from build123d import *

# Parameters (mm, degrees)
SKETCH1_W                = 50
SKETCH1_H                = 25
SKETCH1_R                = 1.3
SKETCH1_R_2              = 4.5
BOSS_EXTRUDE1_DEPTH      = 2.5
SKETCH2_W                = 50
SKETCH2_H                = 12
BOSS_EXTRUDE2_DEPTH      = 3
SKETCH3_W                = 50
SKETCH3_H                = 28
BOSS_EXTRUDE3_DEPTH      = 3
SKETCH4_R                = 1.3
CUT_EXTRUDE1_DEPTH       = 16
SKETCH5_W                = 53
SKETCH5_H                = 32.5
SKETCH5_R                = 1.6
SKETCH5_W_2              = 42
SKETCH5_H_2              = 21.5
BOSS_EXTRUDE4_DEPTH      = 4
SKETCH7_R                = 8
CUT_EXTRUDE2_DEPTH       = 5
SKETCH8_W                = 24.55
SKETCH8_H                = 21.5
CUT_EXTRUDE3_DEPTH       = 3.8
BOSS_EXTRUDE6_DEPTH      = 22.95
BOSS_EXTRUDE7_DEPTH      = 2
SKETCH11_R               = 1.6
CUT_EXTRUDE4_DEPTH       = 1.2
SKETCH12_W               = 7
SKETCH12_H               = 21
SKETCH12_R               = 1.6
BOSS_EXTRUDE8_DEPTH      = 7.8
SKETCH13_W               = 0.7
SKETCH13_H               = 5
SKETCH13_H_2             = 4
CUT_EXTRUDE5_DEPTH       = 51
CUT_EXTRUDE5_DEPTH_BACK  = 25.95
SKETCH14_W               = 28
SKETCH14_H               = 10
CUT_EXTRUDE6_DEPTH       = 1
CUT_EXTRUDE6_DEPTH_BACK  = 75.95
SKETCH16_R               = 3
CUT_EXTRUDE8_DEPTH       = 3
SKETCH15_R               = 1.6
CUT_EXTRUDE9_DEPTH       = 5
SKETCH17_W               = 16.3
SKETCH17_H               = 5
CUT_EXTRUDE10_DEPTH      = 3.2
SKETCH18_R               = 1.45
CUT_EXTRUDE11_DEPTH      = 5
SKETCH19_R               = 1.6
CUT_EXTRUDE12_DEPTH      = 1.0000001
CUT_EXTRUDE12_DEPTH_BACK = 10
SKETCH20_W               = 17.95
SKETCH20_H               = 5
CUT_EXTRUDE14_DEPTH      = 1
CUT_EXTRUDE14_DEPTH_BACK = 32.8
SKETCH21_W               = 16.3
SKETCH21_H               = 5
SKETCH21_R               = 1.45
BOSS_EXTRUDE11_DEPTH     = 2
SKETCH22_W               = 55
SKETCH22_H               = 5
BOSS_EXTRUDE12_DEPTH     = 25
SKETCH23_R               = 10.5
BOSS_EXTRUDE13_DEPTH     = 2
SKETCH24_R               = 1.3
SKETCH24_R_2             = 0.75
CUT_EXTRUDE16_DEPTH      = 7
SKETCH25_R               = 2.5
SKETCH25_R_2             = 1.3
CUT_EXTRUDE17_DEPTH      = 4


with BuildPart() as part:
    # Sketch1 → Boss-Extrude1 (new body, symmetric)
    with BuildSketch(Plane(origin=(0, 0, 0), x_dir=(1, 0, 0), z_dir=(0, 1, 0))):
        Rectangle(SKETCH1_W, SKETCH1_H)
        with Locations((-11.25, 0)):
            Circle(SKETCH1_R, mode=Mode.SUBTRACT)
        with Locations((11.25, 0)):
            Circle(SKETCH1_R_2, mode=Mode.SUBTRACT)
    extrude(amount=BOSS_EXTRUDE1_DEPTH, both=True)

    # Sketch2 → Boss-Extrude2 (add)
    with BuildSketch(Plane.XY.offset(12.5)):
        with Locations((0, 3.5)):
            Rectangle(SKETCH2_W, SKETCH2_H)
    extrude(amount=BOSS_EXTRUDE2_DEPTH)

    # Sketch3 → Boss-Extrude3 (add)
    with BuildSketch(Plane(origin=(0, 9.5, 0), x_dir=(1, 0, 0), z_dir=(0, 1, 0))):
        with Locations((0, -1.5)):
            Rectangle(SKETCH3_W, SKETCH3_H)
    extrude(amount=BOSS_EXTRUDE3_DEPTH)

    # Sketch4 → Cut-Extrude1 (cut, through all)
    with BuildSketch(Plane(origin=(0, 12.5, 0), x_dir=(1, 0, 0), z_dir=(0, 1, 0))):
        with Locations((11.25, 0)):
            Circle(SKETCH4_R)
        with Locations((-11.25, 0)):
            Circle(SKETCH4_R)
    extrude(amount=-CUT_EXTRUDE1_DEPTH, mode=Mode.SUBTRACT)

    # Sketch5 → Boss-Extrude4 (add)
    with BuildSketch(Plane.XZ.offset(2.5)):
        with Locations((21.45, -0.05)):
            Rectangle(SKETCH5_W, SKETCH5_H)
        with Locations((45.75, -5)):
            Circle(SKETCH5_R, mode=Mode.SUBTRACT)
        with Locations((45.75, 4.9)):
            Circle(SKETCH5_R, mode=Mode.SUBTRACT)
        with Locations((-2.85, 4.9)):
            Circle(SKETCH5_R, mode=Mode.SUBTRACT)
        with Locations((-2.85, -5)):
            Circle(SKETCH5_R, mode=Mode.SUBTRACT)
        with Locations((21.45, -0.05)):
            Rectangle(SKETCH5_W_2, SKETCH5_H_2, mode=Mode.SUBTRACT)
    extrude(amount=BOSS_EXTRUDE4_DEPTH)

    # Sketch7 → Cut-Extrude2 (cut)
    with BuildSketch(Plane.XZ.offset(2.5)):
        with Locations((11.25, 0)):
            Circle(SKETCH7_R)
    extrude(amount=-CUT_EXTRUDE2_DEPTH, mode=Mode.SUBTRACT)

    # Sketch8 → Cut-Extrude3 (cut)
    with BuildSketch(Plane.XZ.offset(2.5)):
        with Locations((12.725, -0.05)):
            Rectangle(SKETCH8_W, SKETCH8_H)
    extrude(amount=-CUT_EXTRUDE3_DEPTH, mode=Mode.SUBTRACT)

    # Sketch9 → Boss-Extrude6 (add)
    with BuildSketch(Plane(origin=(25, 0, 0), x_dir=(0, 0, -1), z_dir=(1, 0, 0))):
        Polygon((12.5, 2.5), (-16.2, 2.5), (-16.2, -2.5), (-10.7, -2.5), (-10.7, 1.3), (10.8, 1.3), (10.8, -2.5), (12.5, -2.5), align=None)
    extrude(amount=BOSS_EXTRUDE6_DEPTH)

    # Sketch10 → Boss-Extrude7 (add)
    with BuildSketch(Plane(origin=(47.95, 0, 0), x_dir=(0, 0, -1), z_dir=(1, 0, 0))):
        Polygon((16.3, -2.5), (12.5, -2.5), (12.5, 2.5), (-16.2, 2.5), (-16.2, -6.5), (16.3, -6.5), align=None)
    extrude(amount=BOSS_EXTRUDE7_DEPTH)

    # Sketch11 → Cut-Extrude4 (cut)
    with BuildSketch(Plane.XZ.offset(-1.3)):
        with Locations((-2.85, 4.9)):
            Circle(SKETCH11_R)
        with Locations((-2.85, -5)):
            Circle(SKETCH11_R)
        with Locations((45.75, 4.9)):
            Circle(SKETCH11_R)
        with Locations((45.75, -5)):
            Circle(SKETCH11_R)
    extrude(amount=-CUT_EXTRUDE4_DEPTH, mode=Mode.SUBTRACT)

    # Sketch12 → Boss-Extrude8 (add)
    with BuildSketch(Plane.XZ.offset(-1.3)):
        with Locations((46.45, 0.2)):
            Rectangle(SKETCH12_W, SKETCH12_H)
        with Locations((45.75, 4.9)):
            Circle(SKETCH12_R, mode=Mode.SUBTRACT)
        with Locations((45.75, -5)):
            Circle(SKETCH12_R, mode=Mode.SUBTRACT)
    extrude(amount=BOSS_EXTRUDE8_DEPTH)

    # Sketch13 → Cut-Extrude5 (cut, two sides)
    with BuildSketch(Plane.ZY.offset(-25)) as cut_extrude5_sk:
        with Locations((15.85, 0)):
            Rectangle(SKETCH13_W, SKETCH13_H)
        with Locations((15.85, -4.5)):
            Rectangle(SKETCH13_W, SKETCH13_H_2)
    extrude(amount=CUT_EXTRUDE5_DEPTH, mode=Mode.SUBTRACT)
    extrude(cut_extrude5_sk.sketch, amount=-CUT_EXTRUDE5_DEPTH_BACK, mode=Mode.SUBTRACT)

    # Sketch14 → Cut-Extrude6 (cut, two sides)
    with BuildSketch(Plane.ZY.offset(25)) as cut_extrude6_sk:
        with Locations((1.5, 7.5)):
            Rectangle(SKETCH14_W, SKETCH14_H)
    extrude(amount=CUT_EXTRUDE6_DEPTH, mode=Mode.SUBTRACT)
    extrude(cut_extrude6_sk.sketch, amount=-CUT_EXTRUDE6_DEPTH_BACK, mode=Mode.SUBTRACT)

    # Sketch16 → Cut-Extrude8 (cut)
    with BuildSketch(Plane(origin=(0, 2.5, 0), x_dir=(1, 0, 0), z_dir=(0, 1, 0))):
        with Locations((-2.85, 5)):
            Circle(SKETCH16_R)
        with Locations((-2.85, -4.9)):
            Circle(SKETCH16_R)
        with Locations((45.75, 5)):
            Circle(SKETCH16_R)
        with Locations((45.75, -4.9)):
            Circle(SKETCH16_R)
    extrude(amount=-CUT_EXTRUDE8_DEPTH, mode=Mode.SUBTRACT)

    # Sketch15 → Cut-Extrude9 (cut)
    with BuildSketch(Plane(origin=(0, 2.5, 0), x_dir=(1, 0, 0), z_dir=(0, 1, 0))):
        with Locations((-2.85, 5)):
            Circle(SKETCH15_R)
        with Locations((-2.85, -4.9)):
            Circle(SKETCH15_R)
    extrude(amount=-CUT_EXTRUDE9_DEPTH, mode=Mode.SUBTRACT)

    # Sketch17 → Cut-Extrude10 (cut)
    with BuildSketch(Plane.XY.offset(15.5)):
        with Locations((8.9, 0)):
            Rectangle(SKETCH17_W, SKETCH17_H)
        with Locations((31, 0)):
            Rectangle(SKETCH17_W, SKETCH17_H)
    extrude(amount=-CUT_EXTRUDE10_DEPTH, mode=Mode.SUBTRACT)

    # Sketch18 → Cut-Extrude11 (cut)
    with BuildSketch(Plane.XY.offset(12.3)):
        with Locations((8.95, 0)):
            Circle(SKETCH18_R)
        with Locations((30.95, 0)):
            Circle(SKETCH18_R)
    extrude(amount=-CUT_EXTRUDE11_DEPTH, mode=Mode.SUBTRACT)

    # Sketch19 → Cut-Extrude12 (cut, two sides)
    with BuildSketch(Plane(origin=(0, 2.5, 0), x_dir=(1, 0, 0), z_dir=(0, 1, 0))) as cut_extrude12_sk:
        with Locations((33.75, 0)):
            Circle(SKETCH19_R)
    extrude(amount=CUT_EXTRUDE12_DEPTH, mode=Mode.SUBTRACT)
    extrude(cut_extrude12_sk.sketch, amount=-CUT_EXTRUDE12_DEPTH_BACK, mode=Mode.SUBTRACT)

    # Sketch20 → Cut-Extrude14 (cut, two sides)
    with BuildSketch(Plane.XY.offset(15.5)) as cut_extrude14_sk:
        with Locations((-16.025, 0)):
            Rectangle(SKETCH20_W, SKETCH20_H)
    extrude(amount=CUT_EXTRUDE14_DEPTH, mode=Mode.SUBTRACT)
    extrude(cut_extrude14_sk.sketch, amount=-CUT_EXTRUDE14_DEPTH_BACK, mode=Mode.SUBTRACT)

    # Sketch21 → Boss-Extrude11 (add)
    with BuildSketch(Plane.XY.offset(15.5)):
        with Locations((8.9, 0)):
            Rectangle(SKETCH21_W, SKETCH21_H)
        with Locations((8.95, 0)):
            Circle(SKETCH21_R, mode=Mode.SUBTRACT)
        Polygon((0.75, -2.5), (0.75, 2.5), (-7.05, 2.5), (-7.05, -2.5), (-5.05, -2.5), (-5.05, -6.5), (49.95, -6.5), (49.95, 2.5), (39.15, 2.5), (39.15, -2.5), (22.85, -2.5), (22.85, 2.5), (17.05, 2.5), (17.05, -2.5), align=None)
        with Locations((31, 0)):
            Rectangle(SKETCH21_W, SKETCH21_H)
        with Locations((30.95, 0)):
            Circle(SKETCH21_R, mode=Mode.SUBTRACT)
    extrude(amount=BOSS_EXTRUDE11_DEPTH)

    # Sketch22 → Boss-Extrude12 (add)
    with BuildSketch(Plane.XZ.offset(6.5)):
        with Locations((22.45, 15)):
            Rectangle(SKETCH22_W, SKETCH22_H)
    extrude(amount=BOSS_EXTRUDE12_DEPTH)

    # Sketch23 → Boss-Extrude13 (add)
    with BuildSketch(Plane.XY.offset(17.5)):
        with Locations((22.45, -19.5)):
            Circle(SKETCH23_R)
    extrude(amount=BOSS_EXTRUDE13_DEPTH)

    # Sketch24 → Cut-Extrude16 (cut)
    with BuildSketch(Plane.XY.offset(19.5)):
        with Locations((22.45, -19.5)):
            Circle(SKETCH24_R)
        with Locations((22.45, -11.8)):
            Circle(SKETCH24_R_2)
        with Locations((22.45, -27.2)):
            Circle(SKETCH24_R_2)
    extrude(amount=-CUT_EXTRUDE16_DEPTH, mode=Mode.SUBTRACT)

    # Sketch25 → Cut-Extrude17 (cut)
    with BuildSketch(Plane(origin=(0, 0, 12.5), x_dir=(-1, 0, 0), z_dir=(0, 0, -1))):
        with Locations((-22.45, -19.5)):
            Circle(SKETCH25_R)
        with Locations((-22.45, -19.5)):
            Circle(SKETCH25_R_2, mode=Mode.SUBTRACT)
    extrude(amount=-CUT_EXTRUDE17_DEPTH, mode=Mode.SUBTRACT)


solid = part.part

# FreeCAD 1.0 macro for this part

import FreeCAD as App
import Part
import Sketcher
Q = App.Units.Quantity

doc = App.newDocument("Part")
params = doc.addObject("Spreadsheet::Sheet", "Params")
for row, (alias, value) in enumerate([
    ("sketch1_diameter", "9 mm"),
    ("sketch1_diameter2", "2.6 mm"),
    ("sketch1_width", "50 mm"),
    ("sketch1_height", "25 mm"),
    ("pad1_length", "5 mm"),
    ("sketch2_width", "50 mm"),
    ("sketch2_height", "12 mm"),
    ("pad2_length", "3 mm"),
    ("sketch3_width", "50 mm"),
    ("sketch3_height", "28 mm"),
    ("pad3_length", "3 mm"),
    ("sketch4_diameter", "2.6 mm"),
    ("sketch5_diameter", "3.2 mm"),
    ("sketch5_width", "53 mm"),
    ("sketch5_width2", "42 mm"),
    ("sketch5_height", "32.5 mm"),
    ("sketch5_height2", "21.5 mm"),
    ("pad4_length", "4 mm"),
    ("sketch6_diameter", "16 mm"),
    ("pocket2_length", "5 mm"),
    ("sketch7_height", "21.5 mm"),
    ("sketch7_width", "24.55 mm"),
    ("pocket3_length", "3.8 mm"),
    ("sketch8_width", "5 mm"),
    ("sketch8_width2", "3.8 mm"),
    ("sketch8_height", "28.7 mm"),
    ("sketch8_height2", "5.5 mm"),
    ("sketch8_height3", "21.5 mm"),
    ("pad5_length", "22.95 mm"),
    ("sketch9_width", "5 mm"),
    ("sketch9_width2", "9 mm"),
    ("sketch9_height", "3.8 mm"),
    ("sketch9_height2", "28.7 mm"),
    ("pad6_length", "2 mm"),
    ("sketch10_diameter", "3.2 mm"),
    ("pocket4_length", "1.2 mm"),
    ("sketch11_diameter", "3.2 mm"),
    ("sketch11_width", "7 mm"),
    ("sketch11_height", "21 mm"),
    ("pad7_length", "7.8 mm"),
    ("sketch12_width", "9 mm"),
    ("sketch12_height", "0.7 mm"),
    ("sketch13_width", "10 mm"),
    ("sketch13_height", "28 mm"),
    ("sketch14_diameter", "6 mm"),
    ("pocket7_length", "3 mm"),
    ("sketch15_diameter", "3.2 mm"),
    ("pocket8_length", "5 mm"),
    ("sketch16_height", "5 mm"),
    ("sketch16_width", "16.3 mm"),
    ("pocket9_length", "3.2 mm"),
    ("sketch17_diameter", "2.9 mm"),
    ("pocket10_length", "5 mm"),
    ("sketch18_diameter", "3.2 mm"),
    ("sketch19_height", "5 mm"),
    ("sketch19_width", "17.95 mm"),
    ("sketch20_diameter", "2.9 mm"),
    ("sketch20_width", "2 mm"),
    ("sketch20_width2", "55 mm"),
    ("sketch20_height", "5 mm"),
    ("sketch20_height2", "4 mm"),
    ("pad8_length", "2 mm"),
    ("sketch21_width", "55 mm"),
    ("sketch21_height", "5 mm"),
    ("pad9_length", "25 mm"),
    ("sketch22_diameter", "21 mm"),
    ("pad10_length", "2 mm"),
    ("sketch23_diameter", "2.6 mm"),
    ("sketch23_diameter2", "1.5 mm"),
    ("pocket13_length", "7 mm"),
    ("sketch24_diameter", "5 mm"),
    ("sketch24_diameter2", "2.6 mm"),
    ("pocket14_length", "4 mm"),
], start=1):
    params.set(f"A{row}", alias)
    params.set(f"B{row}", "=" + value)
    params.setAlias(f"B{row}", alias)

body = doc.addObject("PartDesign::Body", "Body")

# Sketch on XZ plane
sketch1 = body.newObject("Sketcher::SketchObject", "Sketch")
sketch1.AttachmentSupport = (doc.getObject("XZ_Plane"), [""])
sketch1.MapMode = "FlatFace"
sketch1.addGeometry([
    Part.LineSegment(App.Vector(-25, -12.5, 0), App.Vector(-25, 12.5, 0)),  # 0
    Part.LineSegment(App.Vector(-25, 12.5, 0), App.Vector(25, 12.5, 0)),  # 1
    Part.LineSegment(App.Vector(25, 12.5, 0), App.Vector(25, -12.5, 0)),  # 2
    Part.LineSegment(App.Vector(25, -12.5, 0), App.Vector(-25, -12.5, 0)),  # 3
    Part.Circle(App.Vector(-11.25, 0, 0), App.Vector(0, 0, 1), 1.3),  # 4
    Part.Circle(App.Vector(11.25, 0, 0), App.Vector(0, 0, 1), 4.5),  # 5
], False)
sketch1.addConstraint([
    Sketcher.Constraint("Coincident", 0, 2, 1, 1),
    Sketcher.Constraint("Coincident", 1, 2, 2, 1),
    Sketcher.Constraint("Coincident", 2, 2, 3, 1),
    Sketcher.Constraint("Coincident", 3, 2, 0, 1),
    Sketcher.Constraint("Vertical", 0),
    Sketcher.Constraint("Horizontal", 1),
    Sketcher.Constraint("Vertical", 2),
    Sketcher.Constraint("Horizontal", 3),
    Sketcher.Constraint("Symmetric", 4, 3, 5, 3, -1, 1),
    Sketcher.Constraint("Symmetric", 0, 2, 2, 2, -1, 1),
    Sketcher.Constraint("PointOnObject", 4, 3, -1),
    Sketcher.Constraint("Diameter", 5, Q("9 mm")),
    Sketcher.Constraint("Diameter", 4, Q("2.6 mm")),
    Sketcher.Constraint("DistanceX", 1, 1, 1, 2, Q("50 mm")),
    Sketcher.Constraint("DistanceY", 0, 1, 0, 2, Q("25 mm")),
    Sketcher.Constraint("DistanceX", 4, 3, 5, 3, Q("22.5 mm")),
])
sketch1.setExpression("Constraints[11]", "Params.sketch1_diameter")
sketch1.setExpression("Constraints[12]", "Params.sketch1_diameter2")
sketch1.setExpression("Constraints[13]", "Params.sketch1_width")
sketch1.setExpression("Constraints[14]", "Params.sketch1_height")
pad1 = body.newObject("PartDesign::Pad", "Pad")
pad1.Profile = sketch1
pad1.setExpression("Length", "Params.pad1_length")
pad1.Midplane = True

# Sketch on XY plane
sketch2 = body.newObject("Sketcher::SketchObject", "Sketch001")
sketch2.AttachmentSupport = (doc.getObject("XY_Plane"), [""])
sketch2.MapMode = "FlatFace"
sketch2.AttachmentOffset = App.Placement(App.Vector(0, 0, 12.5), App.Rotation())
sketch2.addGeometry([
    Part.LineSegment(App.Vector(-25, 9.5, 0), App.Vector(-25, -2.5, 0)),
    Part.LineSegment(App.Vector(-25, -2.5, 0), App.Vector(25, -2.5, 0)),
    Part.LineSegment(App.Vector(25, -2.5, 0), App.Vector(25, 9.5, 0)),
    Part.LineSegment(App.Vector(25, 9.5, 0), App.Vector(-25, 9.5, 0)),
], False)
sketch2.addConstraint([
    Sketcher.Constraint("Coincident", 0, 2, 1, 1),
    Sketcher.Constraint("Coincident", 1, 2, 2, 1),
    Sketcher.Constraint("Coincident", 2, 2, 3, 1),
    Sketcher.Constraint("Coincident", 3, 2, 0, 1),
    Sketcher.Constraint("Vertical", 0),
    Sketcher.Constraint("Horizontal", 1),
    Sketcher.Constraint("Vertical", 2),
    Sketcher.Constraint("Horizontal", 3),
    Sketcher.Constraint("DistanceX", 1, 1, 1, 2, Q("50 mm")),
    Sketcher.Constraint("DistanceY", 0, 2, 0, 1, Q("12 mm")),
    Sketcher.Constraint("DistanceX", 0, 2, -1, 1, Q("25 mm")),
    Sketcher.Constraint("DistanceY", 0, 2, -1, 1, Q("2.5 mm")),
])
sketch2.setExpression("Constraints[8]", "Params.sketch2_width")
sketch2.setExpression("Constraints[9]", "Params.sketch2_height")
pad2 = body.newObject("PartDesign::Pad", "Pad001")
pad2.Profile = sketch2
pad2.setExpression("Length", "Params.pad2_length")

# Sketch on XZ plane
sketch3 = body.newObject("Sketcher::SketchObject", "Sketch002")
sketch3.AttachmentSupport = (doc.getObject("XZ_Plane"), [""])
sketch3.MapMode = "FlatFace"
sketch3.AttachmentOffset = App.Placement(App.Vector(0, 0, -9.5), App.Rotation())
sketch3.addGeometry([
    Part.LineSegment(App.Vector(-25, -12.5, 0), App.Vector(-25, 15.5, 0)),
    Part.LineSegment(App.Vector(-25, 15.5, 0), App.Vector(25, 15.5, 0)),
    Part.LineSegment(App.Vector(25, 15.5, 0), App.Vector(25, -12.5, 0)),
    Part.LineSegment(App.Vector(25, -12.5, 0), App.Vector(-25, -12.5, 0)),
], False)
sketch3.addConstraint([
    Sketcher.Constraint("Coincident", 0, 2, 1, 1),
    Sketcher.Constraint("Coincident", 1, 2, 2, 1),
    Sketcher.Constraint("Coincident", 2, 2, 3, 1),
    Sketcher.Constraint("Coincident", 3, 2, 0, 1),
    Sketcher.Constraint("Vertical", 0),
    Sketcher.Constraint("Horizontal", 1),
    Sketcher.Constraint("Vertical", 2),
    Sketcher.Constraint("Horizontal", 3),
    Sketcher.Constraint("DistanceX", 1, 1, 1, 2, Q("50 mm")),
    Sketcher.Constraint("DistanceY", 0, 1, 0, 2, Q("28 mm")),
    Sketcher.Constraint("DistanceX", 0, 2, -1, 1, Q("25 mm")),
    Sketcher.Constraint("DistanceY", -1, 1, 0, 2, Q("15.5 mm")),
])
sketch3.setExpression("Constraints[8]", "Params.sketch3_width")
sketch3.setExpression("Constraints[9]", "Params.sketch3_height")
pad3 = body.newObject("PartDesign::Pad", "Pad002")
pad3.Profile = sketch3
pad3.setExpression("Length", "Params.pad3_length")
pad3.Reversed = True

# Sketch on XZ plane
sketch4 = body.newObject("Sketcher::SketchObject", "Sketch003")
sketch4.AttachmentSupport = (doc.getObject("XZ_Plane"), [""])
sketch4.MapMode = "FlatFace"
sketch4.AttachmentOffset = App.Placement(App.Vector(0, 0, -12.5), App.Rotation())
sketch4.addGeometry([
    Part.Circle(App.Vector(11.25, 0, 0), App.Vector(0, 0, 1), 1.3),
    Part.Circle(App.Vector(-11.25, 0, 0), App.Vector(0, 0, 1), 1.3),
], False)
sketch4.addConstraint([
    Sketcher.Constraint("Equal", 0, 1),
    Sketcher.Constraint("Symmetric", 0, 3, 1, 3, -1, 1),
    Sketcher.Constraint("PointOnObject", 0, 3, -1),
    Sketcher.Constraint("Diameter", 0, Q("2.6 mm")),
    Sketcher.Constraint("DistanceX", 1, 3, 0, 3, Q("22.5 mm")),
])
sketch4.setExpression("Constraints[3]", "Params.sketch4_diameter")
pocket1 = body.newObject("PartDesign::Pocket", "Pocket")
pocket1.Profile = sketch4
pocket1.Type = "ThroughAll"
pocket1.Reversed = True

# Sketch on XZ plane
sketch5 = body.newObject("Sketcher::SketchObject", "Sketch004")
sketch5.AttachmentSupport = (doc.getObject("XZ_Plane"), [""])
sketch5.MapMode = "FlatFace"
sketch5.AttachmentOffset = App.Placement(App.Vector(0, 0, 2.5), App.Rotation())
sketch5.addGeometry([
    Part.LineSegment(App.Vector(-5.05, 16.2, 0), App.Vector(-5.05, -16.3, 0)),  # 0
    Part.LineSegment(App.Vector(-5.05, -16.3, 0), App.Vector(47.95, -16.3, 0)),  # 1
    Part.LineSegment(App.Vector(47.95, -16.3, 0), App.Vector(47.95, 16.2, 0)),  # 2
    Part.LineSegment(App.Vector(47.95, 16.2, 0), App.Vector(-5.05, 16.2, 0)),  # 3
    Part.Circle(App.Vector(-2.85, -5, 0), App.Vector(0, 0, 1), 1.6),  # 4
    Part.Circle(App.Vector(45.75, -5, 0), App.Vector(0, 0, 1), 1.6),  # 5
    Part.Circle(App.Vector(-2.85, 4.9, 0), App.Vector(0, 0, 1), 1.6),  # 6
    Part.LineSegment(App.Vector(42.45, -10.8, 0), App.Vector(0.45, -10.8, 0)),  # 7
    Part.LineSegment(App.Vector(0.45, -10.8, 0), App.Vector(0.45, 10.7, 0)),  # 8
    Part.LineSegment(App.Vector(0.45, 10.7, 0), App.Vector(42.45, 10.7, 0)),  # 9
    Part.LineSegment(App.Vector(42.45, 10.7, 0), App.Vector(42.45, -10.8, 0)),  # 10
    Part.Circle(App.Vector(45.75, 4.9, 0), App.Vector(0, 0, 1), 1.6),  # 11
], False)
sketch5.addConstraint([
    Sketcher.Constraint("Coincident", 0, 2, 1, 1),
    Sketcher.Constraint("Coincident", 1, 2, 2, 1),
    Sketcher.Constraint("Coincident", 2, 2, 3, 1),
    Sketcher.Constraint("Coincident", 3, 2, 0, 1),
    Sketcher.Constraint("Coincident", 7, 2, 8, 1),
    Sketcher.Constraint("Coincident", 8, 2, 9, 1),
    Sketcher.Constraint("Coincident", 9, 2, 10, 1),
    Sketcher.Constraint("Coincident", 10, 2, 7, 1),
    Sketcher.Constraint("Vertical", 0),
    Sketcher.Constraint("Horizontal", 1),
    Sketcher.Constraint("Vertical", 2),
    Sketcher.Constraint("Horizontal", 3),
    Sketcher.Constraint("Horizontal", 7),
    Sketcher.Constraint("Vertical", 8),
    Sketcher.Constraint("Horizontal", 9),
    Sketcher.Constraint("Vertical", 10),
    Sketcher.Constraint("Equal", 4, 5),
    Sketcher.Constraint("Equal", 5, 6),
    Sketcher.Constraint("Equal", 6, 11),
    Sketcher.Constraint("Horizontal", 4, 3, 5, 3),
    Sketcher.Constraint("Horizontal", 6, 3, 11, 3),
    Sketcher.Constraint("Vertical", 4, 3, 6, 3),
    Sketcher.Constraint("Vertical", 5, 3, 11, 3),
    Sketcher.Constraint("Diameter", 4, Q("3.2 mm")),
    Sketcher.Constraint("DistanceX", 1, 1, 1, 2, Q("53 mm")),
    Sketcher.Constraint("DistanceX", 7, 2, 7, 1, Q("42 mm")),
    Sketcher.Constraint("DistanceY", 0, 2, 0, 1, Q("32.5 mm")),
    Sketcher.Constraint("DistanceY", 8, 1, 8, 2, Q("21.5 mm")),
    Sketcher.Constraint("DistanceY", 4, 3, -1, 1, Q("5 mm")),
    Sketcher.Constraint("DistanceY", 7, 2, 3, 2, Q("27 mm")),
    Sketcher.Constraint("DistanceY", -1, 1, 6, 3, Q("4.9 mm")),
    Sketcher.Constraint("DistanceY", 0, 2, -1, 1, Q("16.3 mm")),
    Sketcher.Constraint("DistanceX", 4, 3, 5, 3, Q("48.6 mm")),
    Sketcher.Constraint("DistanceX", 0, 2, 4, 3, Q("2.2 mm")),
    Sketcher.Constraint("DistanceX", 4, 3, 7, 2, Q("3.3 mm")),
    Sketcher.Constraint("DistanceX", 4, 3, -1, 1, Q("2.85 mm")),
])
sketch5.setExpression("Constraints[23]", "Params.sketch5_diameter")
sketch5.setExpression("Constraints[24]", "Params.sketch5_width")
sketch5.setExpression("Constraints[25]", "Params.sketch5_width2")
sketch5.setExpression("Constraints[26]", "Params.sketch5_height")
sketch5.setExpression("Constraints[27]", "Params.sketch5_height2")
pad4 = body.newObject("PartDesign::Pad", "Pad003")
pad4.Profile = sketch5
pad4.setExpression("Length", "Params.pad4_length")

# Sketch on XZ plane
sketch6 = body.newObject("Sketcher::SketchObject", "Sketch005")
sketch6.AttachmentSupport = (doc.getObject("XZ_Plane"), [""])
sketch6.MapMode = "FlatFace"
sketch6.AttachmentOffset = App.Placement(App.Vector(0, 0, 2.5), App.Rotation())
sketch6.addGeometry(Part.Circle(App.Vector(11.25, 0, 0), App.Vector(0, 0, 1), 8), False)
sketch6.addConstraint([
    Sketcher.Constraint("PointOnObject", 0, 3, -1),
    Sketcher.Constraint("Diameter", 0, Q("16 mm")),
    Sketcher.Constraint("DistanceX", -1, 1, 0, 3, Q("11.25 mm")),
])
sketch6.setExpression("Constraints[1]", "Params.sketch6_diameter")
pocket2 = body.newObject("PartDesign::Pocket", "Pocket001")
pocket2.Profile = sketch6
pocket2.setExpression("Length", "Params.pocket2_length")

# Sketch on XZ plane
sketch7 = body.newObject("Sketcher::SketchObject", "Sketch006")
sketch7.AttachmentSupport = (doc.getObject("XZ_Plane"), [""])
sketch7.MapMode = "FlatFace"
sketch7.AttachmentOffset = App.Placement(App.Vector(0, 0, 2.5), App.Rotation())
sketch7.addGeometry([
    Part.LineSegment(App.Vector(0.45, 10.7, 0), App.Vector(0.45, -10.8, 0)),
    Part.LineSegment(App.Vector(0.45, -10.8, 0), App.Vector(25, -10.8, 0)),
    Part.LineSegment(App.Vector(25, -10.8, 0), App.Vector(25, 10.7, 0)),
    Part.LineSegment(App.Vector(25, 10.7, 0), App.Vector(0.45, 10.7, 0)),
], False)
sketch7.addConstraint([
    Sketcher.Constraint("Coincident", 0, 2, 1, 1),
    Sketcher.Constraint("Coincident", 1, 2, 2, 1),
    Sketcher.Constraint("Coincident", 2, 2, 3, 1),
    Sketcher.Constraint("Coincident", 3, 2, 0, 1),
    Sketcher.Constraint("Vertical", 0),
    Sketcher.Constraint("Horizontal", 1),
    Sketcher.Constraint("Vertical", 2),
    Sketcher.Constraint("Horizontal", 3),
    Sketcher.Constraint("DistanceY", 0, 2, 0, 1, Q("21.5 mm")),
    Sketcher.Constraint("DistanceX", -1, 1, 1, 2, Q("25 mm")),
    Sketcher.Constraint("DistanceX", 1, 1, 1, 2, Q("24.55 mm")),
    Sketcher.Constraint("DistanceY", 0, 2, -1, 1, Q("10.8 mm")),
])
sketch7.setExpression("Constraints[8]", "Params.sketch7_height")
sketch7.setExpression("Constraints[10]", "Params.sketch7_width")
pocket3 = body.newObject("PartDesign::Pocket", "Pocket002")
pocket3.Profile = sketch7
pocket3.setExpression("Length", "Params.pocket3_length")

# Sketch on YZ plane
sketch8 = body.newObject("Sketcher::SketchObject", "Sketch007")
sketch8.AttachmentSupport = (doc.getObject("YZ_Plane"), [""])
sketch8.MapMode = "FlatFace"
sketch8.AttachmentOffset = App.Placement(App.Vector(0, 0, 25), App.Rotation())
sketch8.addGeometry([
    Part.LineSegment(App.Vector(2.5, -12.5, 0), App.Vector(2.5, 16.2, 0)),  # 0
    Part.LineSegment(App.Vector(2.5, 16.2, 0), App.Vector(-2.5, 16.2, 0)),  # 1
    Part.LineSegment(App.Vector(-2.5, 16.2, 0), App.Vector(-2.5, 10.7, 0)),  # 2
    Part.LineSegment(App.Vector(-2.5, 10.7, 0), App.Vector(1.3, 10.7, 0)),  # 3
    Part.LineSegment(App.Vector(1.3, 10.7, 0), App.Vector(1.3, -10.8, 0)),  # 4
    Part.LineSegment(App.Vector(1.3, -10.8, 0), App.Vector(-2.5, -10.8, 0)),  # 5
    Part.LineSegment(App.Vector(-2.5, -10.8, 0), App.Vector(-2.5, -12.5, 0)),  # 6
    Part.LineSegment(App.Vector(-2.5, -12.5, 0), App.Vector(2.5, -12.5, 0)),  # 7
], False)
sketch8.addConstraint([
    Sketcher.Constraint("Coincident", 0, 2, 1, 1),
    Sketcher.Constraint("Coincident", 1, 2, 2, 1),
    Sketcher.Constraint("Coincident", 2, 2, 3, 1),
    Sketcher.Constraint("Coincident", 3, 2, 4, 1),
    Sketcher.Constraint("Coincident", 4, 2, 5, 1),
    Sketcher.Constraint("Coincident", 5, 2, 6, 1),
    Sketcher.Constraint("Coincident", 6, 2, 7, 1),
    Sketcher.Constraint("Coincident", 7, 2, 0, 1),
    Sketcher.Constraint("Vertical", 0),
    Sketcher.Constraint("Horizontal", 1),
    Sketcher.Constraint("Vertical", 2),
    Sketcher.Constraint("Horizontal", 3),
    Sketcher.Constraint("Vertical", 4),
    Sketcher.Constraint("Horizontal", 5),
    Sketcher.Constraint("Vertical", 6),
    Sketcher.Constraint("Horizontal", 7),
    Sketcher.Constraint("Vertical", 2, 2, 5, 2),
    Sketcher.Constraint("DistanceX", 1, 2, 1, 1, Q("5 mm")),
    Sketcher.Constraint("DistanceX", 3, 1, 3, 2, Q("3.8 mm")),
    Sketcher.Constraint("DistanceY", 0, 1, 0, 2, Q("28.7 mm")),
    Sketcher.Constraint("DistanceY", 2, 2, 2, 1, Q("5.5 mm")),
    Sketcher.Constraint("DistanceY", 4, 2, 4, 1, Q("21.5 mm")),
    Sketcher.Constraint("DistanceX", -1, 1, 0, 2, Q("2.5 mm")),
    Sketcher.Constraint("DistanceY", -1, 1, 0, 2, Q("16.2 mm")),
])
sketch8.setExpression("Constraints[17]", "Params.sketch8_width")
sketch8.setExpression("Constraints[18]", "Params.sketch8_width2")
sketch8.setExpression("Constraints[19]", "Params.sketch8_height")
sketch8.setExpression("Constraints[20]", "Params.sketch8_height2")
sketch8.setExpression("Constraints[21]", "Params.sketch8_height3")
pad5 = body.newObject("PartDesign::Pad", "Pad004")
pad5.Profile = sketch8
pad5.setExpression("Length", "Params.pad5_length")

# Sketch on YZ plane
sketch9 = body.newObject("Sketcher::SketchObject", "Sketch008")
sketch9.AttachmentSupport = (doc.getObject("YZ_Plane"), [""])
sketch9.MapMode = "FlatFace"
sketch9.AttachmentOffset = App.Placement(App.Vector(0, 0, 47.95), App.Rotation())
sketch9.addGeometry([
    Part.LineSegment(App.Vector(-2.5, -16.3, 0), App.Vector(-2.5, -12.5, 0)),  # 0
    Part.LineSegment(App.Vector(-2.5, -12.5, 0), App.Vector(2.5, -12.5, 0)),  # 1
    Part.LineSegment(App.Vector(2.5, -12.5, 0), App.Vector(2.5, 16.2, 0)),  # 2
    Part.LineSegment(App.Vector(2.5, 16.2, 0), App.Vector(-6.5, 16.2, 0)),  # 3
    Part.LineSegment(App.Vector(-6.5, 16.2, 0), App.Vector(-6.5, -16.3, 0)),  # 4
    Part.LineSegment(App.Vector(-6.5, -16.3, 0), App.Vector(-2.5, -16.3, 0)),  # 5
], False)
sketch9.addConstraint([
    Sketcher.Constraint("Coincident", 0, 2, 1, 1),
    Sketcher.Constraint("Coincident", 1, 2, 2, 1),
    Sketcher.Constraint("Coincident", 2, 2, 3, 1),
    Sketcher.Constraint("Coincident", 3, 2, 4, 1),
    Sketcher.Constraint("Coincident", 4, 2, 5, 1),
    Sketcher.Constraint("Coincident", 5, 2, 0, 1),
    Sketcher.Constraint("Vertical", 0),
    Sketcher.Constraint("Horizontal", 1),
    Sketcher.Constraint("Vertical", 2),
    Sketcher.Constraint("Horizontal", 3),
    Sketcher.Constraint("Vertical", 4),
    Sketcher.Constraint("Horizontal", 5),
    Sketcher.Constraint("DistanceX", 1, 1, 1, 2, Q("5 mm")),
    Sketcher.Constraint("DistanceX", 3, 2, 3, 1, Q("9 mm")),
    Sketcher.Constraint("DistanceY", 0, 1, 0, 2, Q("3.8 mm")),
    Sketcher.Constraint("DistanceY", 2, 1, 2, 2, Q("28.7 mm")),
    Sketcher.Constraint("DistanceX", 0, 2, -1, 1, Q("2.5 mm")),
    Sketcher.Constraint("DistanceY", 0, 2, -1, 1, Q("12.5 mm")),
])
sketch9.setExpression("Constraints[12]", "Params.sketch9_width")
sketch9.setExpression("Constraints[13]", "Params.sketch9_width2")
sketch9.setExpression("Constraints[14]", "Params.sketch9_height")
sketch9.setExpression("Constraints[15]", "Params.sketch9_height2")
pad6 = body.newObject("PartDesign::Pad", "Pad005")
pad6.Profile = sketch9
pad6.setExpression("Length", "Params.pad6_length")

# Sketch on XZ plane
sketch10 = body.newObject("Sketcher::SketchObject", "Sketch009")
sketch10.AttachmentSupport = (doc.getObject("XZ_Plane"), [""])
sketch10.MapMode = "FlatFace"
sketch10.AttachmentOffset = App.Placement(App.Vector(0, 0, -1.3), App.Rotation())
sketch10.addGeometry([
    Part.Circle(App.Vector(-2.85, 4.9, 0), App.Vector(0, 0, 1), 1.6),
    Part.Circle(App.Vector(-2.85, -5, 0), App.Vector(0, 0, 1), 1.6),
    Part.Circle(App.Vector(45.75, 4.9, 0), App.Vector(0, 0, 1), 1.6),
    Part.Circle(App.Vector(45.75, -5, 0), App.Vector(0, 0, 1), 1.6),
], False)
sketch10.addConstraint([
    Sketcher.Constraint("Equal", 0, 1),
    Sketcher.Constraint("Equal", 1, 2),
    Sketcher.Constraint("Equal", 2, 3),
    Sketcher.Constraint("Horizontal", 0, 3, 2, 3),
    Sketcher.Constraint("Horizontal", 1, 3, 3, 3),
    Sketcher.Constraint("Vertical", 0, 3, 1, 3),
    Sketcher.Constraint("Vertical", 2, 3, 3, 3),
    Sketcher.Constraint("Diameter", 0, Q("3.2 mm")),
    Sketcher.Constraint("DistanceY", 1, 3, -1, 1, Q("5 mm")),
    Sketcher.Constraint("DistanceY", -1, 1, 0, 3, Q("4.9 mm")),
    Sketcher.Constraint("DistanceX", 0, 3, 2, 3, Q("48.6 mm")),
    Sketcher.Constraint("DistanceX", 0, 3, -1, 1, Q("2.85 mm")),
])
sketch10.setExpression("Constraints[7]", "Params.sketch10_diameter")
pocket4 = body.newObject("PartDesign::Pocket", "Pocket003")
pocket4.Profile = sketch10
pocket4.setExpression("Length", "Params.pocket4_length")

# Sketch on XZ plane
sketch11 = body.newObject("Sketcher::SketchObject", "Sketch010")
sketch11.AttachmentSupport = (doc.getObject("XZ_Plane"), [""])
sketch11.MapMode = "FlatFace"
sketch11.AttachmentOffset = App.Placement(App.Vector(0, 0, -1.3), App.Rotation())
sketch11.addGeometry([
    Part.LineSegment(App.Vector(42.95, 10.7, 0), App.Vector(42.95, -10.3, 0)),  # 0
    Part.LineSegment(App.Vector(42.95, -10.3, 0), App.Vector(49.95, -10.3, 0)),  # 1
    Part.LineSegment(App.Vector(49.95, -10.3, 0), App.Vector(49.95, 10.7, 0)),  # 2
    Part.LineSegment(App.Vector(49.95, 10.7, 0), App.Vector(42.95, 10.7, 0)),  # 3
    Part.Circle(App.Vector(45.75, -5, 0), App.Vector(0, 0, 1), 1.6),  # 4
    Part.Circle(App.Vector(45.75, 4.9, 0), App.Vector(0, 0, 1), 1.6),  # 5
], False)
sketch11.addConstraint([
    Sketcher.Constraint("Coincident", 0, 2, 1, 1),
    Sketcher.Constraint("Coincident", 1, 2, 2, 1),
    Sketcher.Constraint("Coincident", 2, 2, 3, 1),
    Sketcher.Constraint("Coincident", 3, 2, 0, 1),
    Sketcher.Constraint("Vertical", 0),
    Sketcher.Constraint("Horizontal", 1),
    Sketcher.Constraint("Vertical", 2),
    Sketcher.Constraint("Horizontal", 3),
    Sketcher.Constraint("Equal", 4, 5),
    Sketcher.Constraint("Vertical", 4, 3, 5, 3),
    Sketcher.Constraint("Diameter", 4, Q("3.2 mm")),
    Sketcher.Constraint("DistanceX", 1, 1, 1, 2, Q("7 mm")),
    Sketcher.Constraint("DistanceY", 0, 2, 0, 1, Q("21 mm")),
    Sketcher.Constraint("DistanceY", 4, 3, -1, 1, Q("5 mm")),
    Sketcher.Constraint("DistanceY", -1, 1, 5, 3, Q("4.9 mm")),
    Sketcher.Constraint("DistanceY", 0, 2, -1, 1, Q("10.3 mm")),
    Sketcher.Constraint("DistanceX", 0, 2, 4, 3, Q("2.8 mm")),
    Sketcher.Constraint("DistanceX", -1, 1, 4, 3, Q("45.75 mm")),
])
sketch11.setExpression("Constraints[10]", "Params.sketch11_diameter")
sketch11.setExpression("Constraints[11]", "Params.sketch11_width")
sketch11.setExpression("Constraints[12]", "Params.sketch11_height")
pad7 = body.newObject("PartDesign::Pad", "Pad006")
pad7.Profile = sketch11
pad7.setExpression("Length", "Params.pad7_length")

# Sketch on YZ plane
sketch12 = body.newObject("Sketcher::SketchObject", "Sketch011")
sketch12.AttachmentSupport = (doc.getObject("YZ_Plane"), [""])
sketch12.MapMode = "FlatFace"
sketch12.AttachmentOffset = App.Placement(App.Vector(0, 0, 25), App.Rotation())
sketch12.addGeometry([
    Part.LineSegment(App.Vector(2.5, 15.5, 0), App.Vector(-6.5, 15.5, 0)),
    Part.LineSegment(App.Vector(-6.5, 15.5, 0), App.Vector(-6.5, 16.2, 0)),
    Part.LineSegment(App.Vector(-6.5, 16.2, 0), App.Vector(2.5, 16.2, 0)),
    Part.LineSegment(App.Vector(2.5, 16.2, 0), App.Vector(2.5, 15.5, 0)),
], False)
sketch12.addConstraint([
    Sketcher.Constraint("Coincident", 0, 2, 1, 1),
    Sketcher.Constraint("Coincident", 1, 2, 2, 1),
    Sketcher.Constraint("Coincident", 2, 2, 3, 1),
    Sketcher.Constraint("Coincident", 3, 2, 0, 1),
    Sketcher.Constraint("Horizontal", 0),
    Sketcher.Constraint("Vertical", 1),
    Sketcher.Constraint("Horizontal", 2),
    Sketcher.Constraint("Vertical", 3),
    Sketcher.Constraint("DistanceX", 0, 2, 0, 1, Q("9 mm")),
    Sketcher.Constraint("DistanceY", 1, 1, 1, 2, Q("0.7 mm")),
    Sketcher.Constraint("DistanceX", 0, 2, -1, 1, Q("6.5 mm")),
    Sketcher.Constraint("DistanceY", -1, 1, 0, 2, Q("15.5 mm")),
])
sketch12.setExpression("Constraints[8]", "Params.sketch12_width")
sketch12.setExpression("Constraints[9]", "Params.sketch12_height")
pocket5 = body.newObject("PartDesign::Pocket", "Pocket004")
pocket5.Profile = sketch12
pocket5.Type = "ThroughAll"
pocket5.Midplane = True

# Sketch on YZ plane
sketch13 = body.newObject("Sketcher::SketchObject", "Sketch012")
sketch13.AttachmentSupport = (doc.getObject("YZ_Plane"), [""])
sketch13.MapMode = "FlatFace"
sketch13.AttachmentOffset = App.Placement(App.Vector(0, 0, -25), App.Rotation())
sketch13.addGeometry([
    Part.LineSegment(App.Vector(12.5, -12.5, 0), App.Vector(2.5, -12.5, 0)),
    Part.LineSegment(App.Vector(2.5, -12.5, 0), App.Vector(2.5, 15.5, 0)),
    Part.LineSegment(App.Vector(2.5, 15.5, 0), App.Vector(12.5, 15.5, 0)),
    Part.LineSegment(App.Vector(12.5, 15.5, 0), App.Vector(12.5, -12.5, 0)),
], False)
sketch13.addConstraint([
    Sketcher.Constraint("Coincident", 0, 2, 1, 1),
    Sketcher.Constraint("Coincident", 1, 2, 2, 1),
    Sketcher.Constraint("Coincident", 2, 2, 3, 1),
    Sketcher.Constraint("Coincident", 3, 2, 0, 1),
    Sketcher.Constraint("Horizontal", 0),
    Sketcher.Constraint("Vertical", 1),
    Sketcher.Constraint("Horizontal", 2),
    Sketcher.Constraint("Vertical", 3),
    Sketcher.Constraint("DistanceX", 0, 2, 0, 1, Q("10 mm")),
    Sketcher.Constraint("DistanceY", 1, 1, 1, 2, Q("28 mm")),
    Sketcher.Constraint("DistanceX", -1, 1, 0, 2, Q("2.5 mm")),
    Sketcher.Constraint("DistanceY", 0, 2, -1, 1, Q("12.5 mm")),
])
sketch13.setExpression("Constraints[8]", "Params.sketch13_width")
sketch13.setExpression("Constraints[9]", "Params.sketch13_height")
pocket6 = body.newObject("PartDesign::Pocket", "Pocket005")
pocket6.Profile = sketch13
pocket6.Type = "ThroughAll"
pocket6.Midplane = True

# Sketch on XZ plane
sketch14 = body.newObject("Sketcher::SketchObject", "Sketch013")
sketch14.AttachmentSupport = (doc.getObject("XZ_Plane"), [""])
sketch14.MapMode = "FlatFace"
sketch14.AttachmentOffset = App.Placement(App.Vector(0, 0, -2.5), App.Rotation())
sketch14.addGeometry([
    Part.Circle(App.Vector(-2.85, -5, 0), App.Vector(0, 0, 1), 3),
    Part.Circle(App.Vector(-2.85, 4.9, 0), App.Vector(0, 0, 1), 3),
    Part.Circle(App.Vector(45.75, -5, 0), App.Vector(0, 0, 1), 3),
    Part.Circle(App.Vector(45.75, 4.9, 0), App.Vector(0, 0, 1), 3),
], False)
sketch14.addConstraint([
    Sketcher.Constraint("Equal", 0, 1),
    Sketcher.Constraint("Equal", 1, 2),
    Sketcher.Constraint("Equal", 2, 3),
    Sketcher.Constraint("Horizontal", 0, 3, 2, 3),
    Sketcher.Constraint("Horizontal", 1, 3, 3, 3),
    Sketcher.Constraint("Vertical", 0, 3, 1, 3),
    Sketcher.Constraint("Vertical", 2, 3, 3, 3),
    Sketcher.Constraint("Diameter", 0, Q("6 mm")),
    Sketcher.Constraint("DistanceY", 0, 3, -1, 1, Q("5 mm")),
    Sketcher.Constraint("DistanceY", -1, 1, 1, 3, Q("4.9 mm")),
    Sketcher.Constraint("DistanceX", 0, 3, 2, 3, Q("48.6 mm")),
    Sketcher.Constraint("DistanceX", 0, 3, -1, 1, Q("2.85 mm")),
])
sketch14.setExpression("Constraints[7]", "Params.sketch14_diameter")
pocket7 = body.newObject("PartDesign::Pocket", "Pocket006")
pocket7.Profile = sketch14
pocket7.setExpression("Length", "Params.pocket7_length")
pocket7.Reversed = True

# Sketch on XZ plane
sketch15 = body.newObject("Sketcher::SketchObject", "Sketch014")
sketch15.AttachmentSupport = (doc.getObject("XZ_Plane"), [""])
sketch15.MapMode = "FlatFace"
sketch15.AttachmentOffset = App.Placement(App.Vector(0, 0, -2.5), App.Rotation())
sketch15.addGeometry([
    Part.Circle(App.Vector(-2.85, -5, 0), App.Vector(0, 0, 1), 1.6),
    Part.Circle(App.Vector(-2.85, 4.9, 0), App.Vector(0, 0, 1), 1.6),
], False)
sketch15.addConstraint([
    Sketcher.Constraint("Equal", 0, 1),
    Sketcher.Constraint("Vertical", 0, 3, 1, 3),
    Sketcher.Constraint("Diameter", 0, Q("3.2 mm")),
    Sketcher.Constraint("DistanceY", 0, 3, -1, 1, Q("5 mm")),
    Sketcher.Constraint("DistanceY", -1, 1, 1, 3, Q("4.9 mm")),
    Sketcher.Constraint("DistanceX", 0, 3, -1, 1, Q("2.85 mm")),
])
sketch15.setExpression("Constraints[2]", "Params.sketch15_diameter")
pocket8 = body.newObject("PartDesign::Pocket", "Pocket007")
pocket8.Profile = sketch15
pocket8.setExpression("Length", "Params.pocket8_length")
pocket8.Reversed = True

# Sketch on XY plane
sketch16 = body.newObject("Sketcher::SketchObject", "Sketch015")
sketch16.AttachmentSupport = (doc.getObject("XY_Plane"), [""])
sketch16.MapMode = "FlatFace"
sketch16.AttachmentOffset = App.Placement(App.Vector(0, 0, 15.5), App.Rotation())
sketch16.addGeometry([
    Part.LineSegment(App.Vector(0.75, 2.5, 0), App.Vector(0.75, -2.5, 0)),  # 0
    Part.LineSegment(App.Vector(0.75, -2.5, 0), App.Vector(17.05, -2.5, 0)),  # 1
    Part.LineSegment(App.Vector(17.05, -2.5, 0), App.Vector(17.05, 2.5, 0)),  # 2
    Part.LineSegment(App.Vector(17.05, 2.5, 0), App.Vector(0.75, 2.5, 0)),  # 3
    Part.LineSegment(App.Vector(22.85, 2.5, 0), App.Vector(22.85, -2.5, 0)),  # 4
    Part.LineSegment(App.Vector(22.85, -2.5, 0), App.Vector(39.15, -2.5, 0)),  # 5
    Part.LineSegment(App.Vector(39.15, -2.5, 0), App.Vector(39.15, 2.5, 0)),  # 6
    Part.LineSegment(App.Vector(39.15, 2.5, 0), App.Vector(22.85, 2.5, 0)),  # 7
], False)
sketch16.addConstraint([
    Sketcher.Constraint("Coincident", 0, 2, 1, 1),
    Sketcher.Constraint("Coincident", 1, 2, 2, 1),
    Sketcher.Constraint("Coincident", 2, 2, 3, 1),
    Sketcher.Constraint("Coincident", 3, 2, 0, 1),
    Sketcher.Constraint("Coincident", 4, 2, 5, 1),
    Sketcher.Constraint("Coincident", 5, 2, 6, 1),
    Sketcher.Constraint("Coincident", 6, 2, 7, 1),
    Sketcher.Constraint("Coincident", 7, 2, 4, 1),
    Sketcher.Constraint("Vertical", 0),
    Sketcher.Constraint("Horizontal", 1),
    Sketcher.Constraint("Vertical", 2),
    Sketcher.Constraint("Horizontal", 3),
    Sketcher.Constraint("Vertical", 4),
    Sketcher.Constraint("Horizontal", 5),
    Sketcher.Constraint("Vertical", 6),
    Sketcher.Constraint("Horizontal", 7),
    Sketcher.Constraint("Horizontal", 1, 2, 4, 2),
    Sketcher.Constraint("Horizontal", 3, 2, 6, 2),
    Sketcher.Constraint("Equal", 3, 5),
    Sketcher.Constraint("DistanceY", 0, 2, 0, 1, Q("5 mm")),
    Sketcher.Constraint("DistanceX", 1, 1, 1, 2, Q("16.3 mm")),
    Sketcher.Constraint("DistanceY", 0, 2, -1, 1, Q("2.5 mm")),
    Sketcher.Constraint("DistanceX", 1, 2, 4, 2, Q("5.8 mm")),
    Sketcher.Constraint("DistanceX", -1, 1, 0, 2, Q("0.75 mm")),
])
sketch16.setExpression("Constraints[19]", "Params.sketch16_height")
sketch16.setExpression("Constraints[20]", "Params.sketch16_width")
pocket9 = body.newObject("PartDesign::Pocket", "Pocket008")
pocket9.Profile = sketch16
pocket9.setExpression("Length", "Params.pocket9_length")

# Sketch on XY plane
sketch17 = body.newObject("Sketcher::SketchObject", "Sketch016")
sketch17.AttachmentSupport = (doc.getObject("XY_Plane"), [""])
sketch17.MapMode = "FlatFace"
sketch17.AttachmentOffset = App.Placement(App.Vector(0, 0, 12.3), App.Rotation())
sketch17.addGeometry([
    Part.Circle(App.Vector(8.95, 0, 0), App.Vector(0, 0, 1), 1.45),
    Part.Circle(App.Vector(30.95, 0, 0), App.Vector(0, 0, 1), 1.45),
], False)
sketch17.addConstraint([
    Sketcher.Constraint("Equal", 0, 1),
    Sketcher.Constraint("PointOnObject", 0, 3, -1),
    Sketcher.Constraint("PointOnObject", 1, 3, -1),
    Sketcher.Constraint("Diameter", 0, Q("2.9 mm")),
    Sketcher.Constraint("DistanceX", 0, 3, 1, 3, Q("22 mm")),
    Sketcher.Constraint("DistanceX", -1, 1, 0, 3, Q("8.95 mm")),
])
sketch17.setExpression("Constraints[3]", "Params.sketch17_diameter")
pocket10 = body.newObject("PartDesign::Pocket", "Pocket009")
pocket10.Profile = sketch17
pocket10.setExpression("Length", "Params.pocket10_length")

# Sketch on XZ plane
sketch18 = body.newObject("Sketcher::SketchObject", "Sketch017")
sketch18.AttachmentSupport = (doc.getObject("XZ_Plane"), [""])
sketch18.MapMode = "FlatFace"
sketch18.AttachmentOffset = App.Placement(App.Vector(0, 0, -2.5), App.Rotation())
sketch18.addGeometry(Part.Circle(App.Vector(33.75, 0, 0), App.Vector(0, 0, 1), 1.6), False)
sketch18.addConstraint([
    Sketcher.Constraint("PointOnObject", 0, 3, -1),
    Sketcher.Constraint("Diameter", 0, Q("3.2 mm")),
    Sketcher.Constraint("DistanceX", -1, 1, 0, 3, Q("33.75 mm")),
])
sketch18.setExpression("Constraints[1]", "Params.sketch18_diameter")
pocket11 = body.newObject("PartDesign::Pocket", "Pocket010")
pocket11.Profile = sketch18
pocket11.Type = "ThroughAll"
pocket11.Midplane = True

# Sketch on XY plane
sketch19 = body.newObject("Sketcher::SketchObject", "Sketch018")
sketch19.AttachmentSupport = (doc.getObject("XY_Plane"), [""])
sketch19.MapMode = "FlatFace"
sketch19.AttachmentOffset = App.Placement(App.Vector(0, 0, 15.5), App.Rotation())
sketch19.addGeometry([
    Part.LineSegment(App.Vector(-25, 2.5, 0), App.Vector(-25, -2.5, 0)),
    Part.LineSegment(App.Vector(-25, -2.5, 0), App.Vector(-7.05, -2.5, 0)),
    Part.LineSegment(App.Vector(-7.05, -2.5, 0), App.Vector(-7.05, 2.5, 0)),
    Part.LineSegment(App.Vector(-7.05, 2.5, 0), App.Vector(-25, 2.5, 0)),
], False)
sketch19.addConstraint([
    Sketcher.Constraint("Coincident", 0, 2, 1, 1),
    Sketcher.Constraint("Coincident", 1, 2, 2, 1),
    Sketcher.Constraint("Coincident", 2, 2, 3, 1),
    Sketcher.Constraint("Coincident", 3, 2, 0, 1),
    Sketcher.Constraint("Vertical", 0),
    Sketcher.Constraint("Horizontal", 1),
    Sketcher.Constraint("Vertical", 2),
    Sketcher.Constraint("Horizontal", 3),
    Sketcher.Constraint("DistanceY", 0, 2, 0, 1, Q("5 mm")),
    Sketcher.Constraint("DistanceX", 0, 2, -1, 1, Q("25 mm")),
    Sketcher.Constraint("DistanceX", 1, 1, 1, 2, Q("17.95 mm")),
    Sketcher.Constraint("DistanceY", 0, 2, -1, 1, Q("2.5 mm")),
])
sketch19.setExpression("Constraints[8]", "Params.sketch19_height")
sketch19.setExpression("Constraints[10]", "Params.sketch19_width")
pocket12 = body.newObject("PartDesign::Pocket", "Pocket011")
pocket12.Profile = sketch19
pocket12.Type = "ThroughAll"
pocket12.Midplane = True

# Sketch on XY plane
sketch20 = body.newObject("Sketcher::SketchObject", "Sketch019")
sketch20.AttachmentSupport = (doc.getObject("XY_Plane"), [""])
sketch20.MapMode = "FlatFace"
sketch20.AttachmentOffset = App.Placement(App.Vector(0, 0, 15.5), App.Rotation())
sketch20.addGeometry([
    Part.LineSegment(App.Vector(-7.05, 2.5, 0), App.Vector(-7.05, -2.5, 0)),  # 0
    Part.LineSegment(App.Vector(-7.05, -2.5, 0), App.Vector(-5.05, -2.5, 0)),  # 1
    Part.LineSegment(App.Vector(-5.05, -2.5, 0), App.Vector(-5.05, -6.5, 0)),  # 2
    Part.LineSegment(App.Vector(-5.05, -6.5, 0), App.Vector(49.95, -6.5, 0)),  # 3
    Part.LineSegment(App.Vector(49.95, -6.5, 0), App.Vector(49.95, 2.5, 0)),  # 4
    Part.LineSegment(App.Vector(49.95, 2.5, 0), App.Vector(-7.05, 2.5, 0)),  # 5
    Part.Circle(App.Vector(8.95, 0, 0), App.Vector(0, 0, 1), 1.45),  # 6
    Part.Circle(App.Vector(30.95, 0, 0), App.Vector(0, 0, 1), 1.45),  # 7
], False)
sketch20.addConstraint([
    Sketcher.Constraint("Coincident", 0, 2, 1, 1),
    Sketcher.Constraint("Coincident", 1, 2, 2, 1),
    Sketcher.Constraint("Coincident", 2, 2, 3, 1),
    Sketcher.Constraint("Coincident", 3, 2, 4, 1),
    Sketcher.Constraint("Coincident", 4, 2, 5, 1),
    Sketcher.Constraint("Coincident", 5, 2, 0, 1),
    Sketcher.Constraint("Vertical", 0),
    Sketcher.Constraint("Horizontal", 1),
    Sketcher.Constraint("Vertical", 2),
    Sketcher.Constraint("Horizontal", 3),
    Sketcher.Constraint("Vertical", 4),
    Sketcher.Constraint("Horizontal", 5),
    Sketcher.Constraint("Equal", 6, 7),
    Sketcher.Constraint("PointOnObject", 6, 3, -1),
    Sketcher.Constraint("PointOnObject", 7, 3, -1),
    Sketcher.Constraint("Diameter", 6, Q("2.9 mm")),
    Sketcher.Constraint("DistanceX", 1, 1, 1, 2, Q("2 mm")),
    Sketcher.Constraint("DistanceX", 3, 1, 3, 2, Q("55 mm")),
    Sketcher.Constraint("DistanceY", 0, 2, 0, 1, Q("5 mm")),
    Sketcher.Constraint("DistanceY", 2, 2, 2, 1, Q("4 mm")),
    Sketcher.Constraint("DistanceX", 6, 3, 7, 3, Q("22 mm")),
    Sketcher.Constraint("DistanceX", 0, 2, 6, 3, Q("16 mm")),
    Sketcher.Constraint("DistanceY", 0, 2, -1, 1, Q("2.5 mm")),
    Sketcher.Constraint("DistanceX", -1, 1, 6, 3, Q("8.95 mm")),
])
sketch20.setExpression("Constraints[15]", "Params.sketch20_diameter")
sketch20.setExpression("Constraints[16]", "Params.sketch20_width")
sketch20.setExpression("Constraints[17]", "Params.sketch20_width2")
sketch20.setExpression("Constraints[18]", "Params.sketch20_height")
sketch20.setExpression("Constraints[19]", "Params.sketch20_height2")
pad8 = body.newObject("PartDesign::Pad", "Pad007")
pad8.Profile = sketch20
pad8.setExpression("Length", "Params.pad8_length")

# Sketch on XZ plane
sketch21 = body.newObject("Sketcher::SketchObject", "Sketch020")
sketch21.AttachmentSupport = (doc.getObject("XZ_Plane"), [""])
sketch21.MapMode = "FlatFace"
sketch21.AttachmentOffset = App.Placement(App.Vector(0, 0, 6.5), App.Rotation())
sketch21.addGeometry([
    Part.LineSegment(App.Vector(-5.05, 17.5, 0), App.Vector(-5.05, 12.5, 0)),
    Part.LineSegment(App.Vector(-5.05, 12.5, 0), App.Vector(49.95, 12.5, 0)),
    Part.LineSegment(App.Vector(49.95, 12.5, 0), App.Vector(49.95, 17.5, 0)),
    Part.LineSegment(App.Vector(49.95, 17.5, 0), App.Vector(-5.05, 17.5, 0)),
], False)
sketch21.addConstraint([
    Sketcher.Constraint("Coincident", 0, 2, 1, 1),
    Sketcher.Constraint("Coincident", 1, 2, 2, 1),
    Sketcher.Constraint("Coincident", 2, 2, 3, 1),
    Sketcher.Constraint("Coincident", 3, 2, 0, 1),
    Sketcher.Constraint("Vertical", 0),
    Sketcher.Constraint("Horizontal", 1),
    Sketcher.Constraint("Vertical", 2),
    Sketcher.Constraint("Horizontal", 3),
    Sketcher.Constraint("DistanceX", 1, 1, 1, 2, Q("55 mm")),
    Sketcher.Constraint("DistanceY", 0, 2, 0, 1, Q("5 mm")),
    Sketcher.Constraint("DistanceY", -1, 1, 0, 2, Q("12.5 mm")),
    Sketcher.Constraint("DistanceX", 0, 2, -1, 1, Q("5.05 mm")),
])
sketch21.setExpression("Constraints[8]", "Params.sketch21_width")
sketch21.setExpression("Constraints[9]", "Params.sketch21_height")
pad9 = body.newObject("PartDesign::Pad", "Pad008")
pad9.Profile = sketch21
pad9.setExpression("Length", "Params.pad9_length")

# Sketch on XY plane
sketch22 = body.newObject("Sketcher::SketchObject", "Sketch021")
sketch22.AttachmentSupport = (doc.getObject("XY_Plane"), [""])
sketch22.MapMode = "FlatFace"
sketch22.AttachmentOffset = App.Placement(App.Vector(0, 0, 17.5), App.Rotation())
sketch22.addGeometry(Part.Circle(App.Vector(22.45, -19.5, 0), App.Vector(0, 0, 1), 10.5), False)
sketch22.addConstraint([
    Sketcher.Constraint("Diameter", 0, Q("21 mm")),
    Sketcher.Constraint("DistanceY", 0, 3, -1, 1, Q("19.5 mm")),
    Sketcher.Constraint("DistanceX", -1, 1, 0, 3, Q("22.45 mm")),
])
sketch22.setExpression("Constraints[0]", "Params.sketch22_diameter")
pad10 = body.newObject("PartDesign::Pad", "Pad009")
pad10.Profile = sketch22
pad10.setExpression("Length", "Params.pad10_length")

# Sketch on XY plane
sketch23 = body.newObject("Sketcher::SketchObject", "Sketch022")
sketch23.AttachmentSupport = (doc.getObject("XY_Plane"), [""])
sketch23.MapMode = "FlatFace"
sketch23.AttachmentOffset = App.Placement(App.Vector(0, 0, 19.5), App.Rotation())
sketch23.addGeometry([
    Part.Circle(App.Vector(22.45, -19.5, 0), App.Vector(0, 0, 1), 1.3),
    Part.Circle(App.Vector(22.45, -11.8, 0), App.Vector(0, 0, 1), 0.75),
    Part.Circle(App.Vector(22.45, -27.2, 0), App.Vector(0, 0, 1), 0.75),
], False)
sketch23.addConstraint([
    Sketcher.Constraint("Equal", 1, 2),
    Sketcher.Constraint("Vertical", 0, 3, 1, 3),
    Sketcher.Constraint("Vertical", 1, 3, 2, 3),
    Sketcher.Constraint("Diameter", 0, Q("2.6 mm")),
    Sketcher.Constraint("Diameter", 1, Q("1.5 mm")),
    Sketcher.Constraint("DistanceY", 0, 3, -1, 1, Q("19.5 mm")),
    Sketcher.Constraint("DistanceY", 1, 3, -1, 1, Q("11.8 mm")),
    Sketcher.Constraint("DistanceY", 2, 3, -1, 1, Q("27.2 mm")),
    Sketcher.Constraint("DistanceX", -1, 1, 0, 3, Q("22.45 mm")),
])
sketch23.setExpression("Constraints[3]", "Params.sketch23_diameter")
sketch23.setExpression("Constraints[4]", "Params.sketch23_diameter2")
pocket13 = body.newObject("PartDesign::Pocket", "Pocket012")
pocket13.Profile = sketch23
pocket13.setExpression("Length", "Params.pocket13_length")

# Sketch on XY plane
sketch24 = body.newObject("Sketcher::SketchObject", "Sketch023")
sketch24.AttachmentSupport = (doc.getObject("XY_Plane"), [""])
sketch24.MapMode = "FlatFace"
sketch24.AttachmentOffset = App.Placement(App.Vector(0, 0, 12.5), App.Rotation())
sketch24.addGeometry([
    Part.Circle(App.Vector(22.45, -19.5, 0), App.Vector(0, 0, 1), 2.5),
    Part.Circle(App.Vector(22.45, -19.5, 0), App.Vector(0, 0, 1), 1.3),
], False)
sketch24.addConstraint([
    Sketcher.Constraint("Coincident", 1, 3, 0, 3),
    Sketcher.Constraint("Diameter", 0, Q("5 mm")),
    Sketcher.Constraint("Diameter", 1, Q("2.6 mm")),
    Sketcher.Constraint("DistanceY", 0, 3, -1, 1, Q("19.5 mm")),
    Sketcher.Constraint("DistanceX", -1, 1, 0, 3, Q("22.45 mm")),
])
sketch24.setExpression("Constraints[1]", "Params.sketch24_diameter")
sketch24.setExpression("Constraints[2]", "Params.sketch24_diameter2")
pocket14 = body.newObject("PartDesign::Pocket", "Pocket013")
pocket14.Profile = sketch24
pocket14.setExpression("Length", "Params.pocket14_length")
pocket14.Reversed = True

doc.recompute()
